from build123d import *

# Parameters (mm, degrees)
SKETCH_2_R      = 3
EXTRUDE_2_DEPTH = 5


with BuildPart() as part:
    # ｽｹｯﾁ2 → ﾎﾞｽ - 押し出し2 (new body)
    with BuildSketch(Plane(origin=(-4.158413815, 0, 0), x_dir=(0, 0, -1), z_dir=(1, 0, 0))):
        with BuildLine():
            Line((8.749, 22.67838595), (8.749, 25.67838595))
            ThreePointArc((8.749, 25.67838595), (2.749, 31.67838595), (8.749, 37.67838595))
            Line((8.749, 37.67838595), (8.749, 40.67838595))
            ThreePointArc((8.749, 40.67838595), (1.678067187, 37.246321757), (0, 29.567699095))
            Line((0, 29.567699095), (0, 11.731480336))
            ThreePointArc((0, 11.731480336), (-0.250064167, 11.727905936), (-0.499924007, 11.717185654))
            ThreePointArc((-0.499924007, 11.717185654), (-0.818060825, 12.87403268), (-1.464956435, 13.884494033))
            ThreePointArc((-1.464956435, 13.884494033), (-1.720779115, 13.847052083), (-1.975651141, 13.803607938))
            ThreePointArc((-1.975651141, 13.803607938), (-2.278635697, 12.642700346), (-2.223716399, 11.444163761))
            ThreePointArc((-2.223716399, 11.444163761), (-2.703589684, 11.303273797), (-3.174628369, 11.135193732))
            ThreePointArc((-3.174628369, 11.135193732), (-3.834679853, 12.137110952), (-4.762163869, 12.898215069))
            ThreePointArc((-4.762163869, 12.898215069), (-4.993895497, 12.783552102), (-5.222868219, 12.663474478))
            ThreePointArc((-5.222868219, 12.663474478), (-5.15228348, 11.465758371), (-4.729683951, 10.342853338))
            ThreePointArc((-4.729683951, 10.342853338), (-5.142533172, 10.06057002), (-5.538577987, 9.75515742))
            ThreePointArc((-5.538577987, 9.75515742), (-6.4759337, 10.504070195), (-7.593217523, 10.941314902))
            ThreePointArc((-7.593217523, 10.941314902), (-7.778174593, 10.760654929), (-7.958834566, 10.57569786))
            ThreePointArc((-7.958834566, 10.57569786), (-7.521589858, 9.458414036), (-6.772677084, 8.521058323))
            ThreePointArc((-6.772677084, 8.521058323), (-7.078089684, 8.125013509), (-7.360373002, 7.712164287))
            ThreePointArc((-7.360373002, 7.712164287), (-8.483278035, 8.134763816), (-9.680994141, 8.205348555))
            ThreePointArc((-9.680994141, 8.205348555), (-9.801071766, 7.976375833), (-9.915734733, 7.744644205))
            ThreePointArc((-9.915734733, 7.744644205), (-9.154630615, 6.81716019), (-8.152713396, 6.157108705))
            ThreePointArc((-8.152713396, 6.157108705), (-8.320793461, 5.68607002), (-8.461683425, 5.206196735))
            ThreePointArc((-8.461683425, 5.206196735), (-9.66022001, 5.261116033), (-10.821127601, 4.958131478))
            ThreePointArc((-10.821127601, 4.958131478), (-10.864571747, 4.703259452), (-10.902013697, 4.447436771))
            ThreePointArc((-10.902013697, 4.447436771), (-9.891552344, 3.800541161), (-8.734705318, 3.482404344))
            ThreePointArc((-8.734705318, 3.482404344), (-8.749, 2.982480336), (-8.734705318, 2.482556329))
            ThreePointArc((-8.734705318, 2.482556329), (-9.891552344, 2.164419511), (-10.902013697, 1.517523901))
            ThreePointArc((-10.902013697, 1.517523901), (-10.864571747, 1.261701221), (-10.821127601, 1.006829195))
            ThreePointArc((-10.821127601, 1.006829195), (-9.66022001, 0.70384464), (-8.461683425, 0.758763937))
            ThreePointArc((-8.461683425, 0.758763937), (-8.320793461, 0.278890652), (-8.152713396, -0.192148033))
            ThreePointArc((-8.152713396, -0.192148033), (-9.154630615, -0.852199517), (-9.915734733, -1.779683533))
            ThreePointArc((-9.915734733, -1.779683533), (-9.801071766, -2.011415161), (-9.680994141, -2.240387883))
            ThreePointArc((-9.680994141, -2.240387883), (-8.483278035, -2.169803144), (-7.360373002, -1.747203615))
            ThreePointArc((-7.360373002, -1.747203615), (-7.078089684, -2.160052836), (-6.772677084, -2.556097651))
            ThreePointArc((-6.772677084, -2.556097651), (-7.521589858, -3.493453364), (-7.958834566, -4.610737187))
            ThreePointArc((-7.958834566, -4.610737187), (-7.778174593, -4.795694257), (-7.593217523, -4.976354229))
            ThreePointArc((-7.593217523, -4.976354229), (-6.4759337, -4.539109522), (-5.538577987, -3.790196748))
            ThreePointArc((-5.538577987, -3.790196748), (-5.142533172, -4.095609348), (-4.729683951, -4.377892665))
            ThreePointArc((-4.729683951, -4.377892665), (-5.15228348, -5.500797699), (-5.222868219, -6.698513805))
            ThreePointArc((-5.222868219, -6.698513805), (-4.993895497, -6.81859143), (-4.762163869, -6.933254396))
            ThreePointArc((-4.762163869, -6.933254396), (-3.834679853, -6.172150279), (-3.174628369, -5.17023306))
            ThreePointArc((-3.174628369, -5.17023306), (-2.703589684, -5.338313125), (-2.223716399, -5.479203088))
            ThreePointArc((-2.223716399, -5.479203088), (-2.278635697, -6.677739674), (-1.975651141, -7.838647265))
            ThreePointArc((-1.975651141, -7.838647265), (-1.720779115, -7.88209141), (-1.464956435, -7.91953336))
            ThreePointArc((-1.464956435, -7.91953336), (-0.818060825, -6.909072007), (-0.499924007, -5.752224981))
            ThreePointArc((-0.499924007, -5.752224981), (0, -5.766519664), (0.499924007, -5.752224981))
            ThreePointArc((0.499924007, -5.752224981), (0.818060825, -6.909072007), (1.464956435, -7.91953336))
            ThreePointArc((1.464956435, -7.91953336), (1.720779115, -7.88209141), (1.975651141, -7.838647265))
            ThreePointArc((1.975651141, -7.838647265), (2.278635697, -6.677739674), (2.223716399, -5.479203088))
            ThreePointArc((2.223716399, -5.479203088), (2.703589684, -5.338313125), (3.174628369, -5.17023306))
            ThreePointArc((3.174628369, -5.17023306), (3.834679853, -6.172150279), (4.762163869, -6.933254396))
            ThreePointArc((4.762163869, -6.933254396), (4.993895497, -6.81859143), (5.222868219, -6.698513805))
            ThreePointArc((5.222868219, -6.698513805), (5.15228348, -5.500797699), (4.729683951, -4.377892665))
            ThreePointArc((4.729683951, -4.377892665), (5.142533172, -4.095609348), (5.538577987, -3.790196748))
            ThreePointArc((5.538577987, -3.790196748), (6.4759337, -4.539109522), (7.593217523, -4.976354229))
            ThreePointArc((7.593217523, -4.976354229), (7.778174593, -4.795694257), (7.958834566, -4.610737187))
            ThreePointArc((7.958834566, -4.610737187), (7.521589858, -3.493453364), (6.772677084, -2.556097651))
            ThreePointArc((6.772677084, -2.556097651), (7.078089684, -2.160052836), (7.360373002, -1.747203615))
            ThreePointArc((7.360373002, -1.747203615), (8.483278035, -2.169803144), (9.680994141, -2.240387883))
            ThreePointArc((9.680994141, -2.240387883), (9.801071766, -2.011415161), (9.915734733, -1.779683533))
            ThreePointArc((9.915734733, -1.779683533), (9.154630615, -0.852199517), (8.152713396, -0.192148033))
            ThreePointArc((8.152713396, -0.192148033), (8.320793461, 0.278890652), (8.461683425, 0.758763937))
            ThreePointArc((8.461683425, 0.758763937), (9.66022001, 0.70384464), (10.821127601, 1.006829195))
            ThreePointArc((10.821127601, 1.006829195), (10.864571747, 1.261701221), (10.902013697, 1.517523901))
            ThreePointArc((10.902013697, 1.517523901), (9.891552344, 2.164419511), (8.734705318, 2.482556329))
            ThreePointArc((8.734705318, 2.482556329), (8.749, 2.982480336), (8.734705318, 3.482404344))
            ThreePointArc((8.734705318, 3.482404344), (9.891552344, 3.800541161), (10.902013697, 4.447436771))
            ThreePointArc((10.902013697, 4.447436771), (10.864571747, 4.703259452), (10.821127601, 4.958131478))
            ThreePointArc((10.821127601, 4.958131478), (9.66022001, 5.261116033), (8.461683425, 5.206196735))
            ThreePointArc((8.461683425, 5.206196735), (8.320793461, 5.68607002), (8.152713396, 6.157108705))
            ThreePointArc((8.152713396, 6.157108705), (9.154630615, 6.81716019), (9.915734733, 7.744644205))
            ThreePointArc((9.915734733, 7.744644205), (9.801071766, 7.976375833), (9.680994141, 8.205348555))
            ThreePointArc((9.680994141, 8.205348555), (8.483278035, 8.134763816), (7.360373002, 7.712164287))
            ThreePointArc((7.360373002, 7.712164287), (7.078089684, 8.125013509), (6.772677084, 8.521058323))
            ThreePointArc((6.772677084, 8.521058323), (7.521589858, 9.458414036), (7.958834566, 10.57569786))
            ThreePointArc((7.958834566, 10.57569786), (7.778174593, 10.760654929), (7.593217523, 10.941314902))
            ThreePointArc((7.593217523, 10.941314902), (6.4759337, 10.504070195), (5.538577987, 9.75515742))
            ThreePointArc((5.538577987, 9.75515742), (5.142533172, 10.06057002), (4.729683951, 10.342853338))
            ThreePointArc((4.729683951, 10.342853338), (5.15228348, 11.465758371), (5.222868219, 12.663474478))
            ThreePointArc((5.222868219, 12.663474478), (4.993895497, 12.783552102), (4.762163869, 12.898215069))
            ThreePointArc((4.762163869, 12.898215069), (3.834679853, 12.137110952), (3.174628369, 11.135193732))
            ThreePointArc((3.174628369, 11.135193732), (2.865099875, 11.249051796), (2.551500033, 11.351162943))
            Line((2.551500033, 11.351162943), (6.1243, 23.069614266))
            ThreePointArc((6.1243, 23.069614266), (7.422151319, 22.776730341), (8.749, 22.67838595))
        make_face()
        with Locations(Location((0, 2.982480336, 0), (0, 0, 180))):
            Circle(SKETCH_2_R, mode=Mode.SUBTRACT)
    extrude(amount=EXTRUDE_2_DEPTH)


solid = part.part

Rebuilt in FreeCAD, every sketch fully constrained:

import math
import FreeCAD as App
import Part
import Sketcher
Q = App.Units.Quantity

doc = App.newDocument("Part")
params = doc.addObject("Spreadsheet::Sheet", "Params")
for row, (alias, value) in enumerate([
    ("sketch1_diameter", "6 mm"),
    ("sketch1_radius", "6 mm"),
    ("sketch1_radius2", "9 mm"),
    ("sketch1_radius3", "4 mm"),
    ("sketch1_radius4", "11 mm"),
    ("pad1_length", "5 mm"),
], start=1):
    params.set(f"A{row}", alias)
    params.set(f"B{row}", "=" + value)
    params.setAlias(f"B{row}", alias)

body = doc.addObject("PartDesign::Body", "Body")

sketch1 = doc.addObject("Sketcher::SketchObject", "Sketch")
body.addObject(sketch1)
sketch1.AttachmentSupport = (doc.YZ_Plane, [""])
sketch1.MapMode = "FlatFace"
sketch1.AttachmentOffset = App.Placement(App.Vector(0, 0, -4.158414), App.Rotation())
sketch1.addGeometry([
    Part.LineSegment(App.Vector(22.678386, -8.749, 0), App.Vector(25.678386, -8.749, 0)),
    Part.ArcOfCircle(Part.Circle(App.Vector(31.678386, -8.749, 0), App.Vector(0, 0, 1), 6), math.radians(0), math.radians(180)),
    Part.LineSegment(App.Vector(37.678386, -8.749, 0), App.Vector(40.678386, -8.749, 0)),
    Part.ArcOfCircle(Part.Circle(App.Vector(31.678386, -8.749, 0), App.Vector(0, 0, 1), 9), math.radians(0), math.radians(103.563375)),
    Part.LineSegment(App.Vector(29.567699, 0, 0), App.Vector(11.73148, 0, 0)),
    Part.ArcOfCircle(Part.Circle(App.Vector(2.982482, 0, 0), App.Vector(0, 0, 1), 8.748999), math.radians(0), math.radians(3.275706)),
    Part.ArcOfCircle(Part.Circle(App.Vector(11.246967, 4.47219, 0), App.Vector(0, 0, 1), 4), math.radians(-83.249005), math.radians(-48.747263)),
    Part.ArcOfCircle(Part.Circle(App.Vector(2.98248, 0, 0), App.Vector(0, 0, 1), 11), math.radians(7.653267), math.radians(10.346733)),
    Part.ArcOfCircle(Part.Circle(App.Vector(12.224457, -1.699438, 0), App.Vector(0, 0, 1), 4), math.radians(66.747263), math.radians(101.249006)),
    Part.ArcOfCircle(Part.Circle(App.Vector(2.98248, 0, 0), App.Vector(0, 0, 1), 8.749), math.radians(14.724295), math.radians(21.275705)),
    Part.ArcOfCircle(Part.Circle(App.Vector(9.460492, 6.807172, 0), App.Vector(0, 0, 1), 4), math.radians(-65.249006), math.radians(-30.747263)),
    Part.ArcOfCircle(Part.Circle(App.Vector(2.982478, -0.000001, 0), App.Vector(0, 0, 1), 11.000002), math.radians(25.653268), math.radians(28.346732)),
    Part.ArcOfCircle(Part.Circle(App.Vector(12.297278, 1.239666, 0), App.Vector(0, 0, 1), 4), math.radians(84.747263), math.radians(119.249005)),
    Part.ArcOfCircle(Part.Circle(App.Vector(2.98248, 0, 0), App.Vector(0, 0, 1), 8.749), math.radians(32.724295), math.radians(39.275705)),
    Part.ArcOfCircle(Part.Circle(App.Vector(7.039903, 8.475821, 0), App.Vector(0, 0, 1), 4), math.radians(-47.249006), math.radians(-12.747263)),
    Part.ArcOfCircle(Part.Circle(App.Vector(2.982479, -0.000001, 0), App.Vector(0, 0, 1), 11.000002), math.radians(43.653268), math.radians(46.346732)),
    Part.ArcOfCircle(Part.Circle(App.Vector(11.458301, 4.057423, 0), App.Vector(0, 0, 1), 4), math.radians(102.747263), math.radians(137.249005)),
    Part.ArcOfCircle(Part.Circle(App.Vector(2.98248, 0, 0), App.Vector(0, 0, 1), 8.749), math.radians(50.724295), math.radians(57.275705)),
    Part.ArcOfCircle(Part.Circle(App.Vector(4.222146, 9.314797, 0), App.Vector(0, 0, 1), 4), math.radians(-29.249005), math.radians(5.252737)),
    Part.ArcOfCircle(Part.Circle(App.Vector(2.98248, -0.000001, 0), App.Vector(0, 0, 1), 11.000001), math.radians(61.653267), math.radians(64.346732)),
    Part.ArcOfCircle(Part.Circle(App.Vector(9.789652, 6.478011, 0), App.Vector(0, 0, 1), 4), math.radians(120.747263), math.radians(155.249005)),
    Part.ArcOfCircle(Part.Circle(App.Vector(2.98248, 0, 0), App.Vector(0, 0, 1), 8.749), math.radians(68.724295), math.radians(75.275705)),
    Part.ArcOfCircle(Part.Circle(App.Vector(1.283042, 9.241977, 0), App.Vector(0, 0, 1), 4), math.radians(-11.249006), math.radians(23.252737)),
    Part.ArcOfCircle(Part.Circle(App.Vector(2.982481, 0.000002, 0), App.Vector(0, 0, 1), 10.999998), math.radians(79.653267), math.radians(82.346733)),
    Part.ArcOfCircle(Part.Circle(App.Vector(7.45467, 8.264487, 0), App.Vector(0, 0, 1), 4), math.radians(138.747263), math.radians(173.249006)),
    Part.ArcOfCircle(Part.Circle(App.Vector(2.98248, 0, 0), App.Vector(0, 0, 1), 8.749), math.radians(86.724295), math.radians(93.275705)),
    Part.ArcOfCircle(Part.Circle(App.Vector(-1.489709, 8.264487, 0), App.Vector(0, 0, 1), 4), math.radians(6.750995), math.radians(41.252737)),
    Part.ArcOfCircle(Part.Circle(App.Vector(2.98248, 0.000002, 0), App.Vector(0, 0, 1), 10.999998), math.radians(97.653267), math.radians(100.346733)),
    Part.ArcOfCircle(Part.Circle(App.Vector(4.681919, 9.241977, 0), App.Vector(0, 0, 1), 4), math.radians(156.747263), math.radians(191.249005)),
    Part.ArcOfCircle(Part.Circle(App.Vector(2.98248, 0, 0), App.Vector(0, 0, 1), 8.749), math.radians(104.724295), math.radians(111.275705)),
    Part.ArcOfCircle(Part.Circle(App.Vector(-3.824692, 6.478011, 0), App.Vector(0, 0, 1), 4), math.radians(24.750995), math.radians(59.252737)),
    Part.ArcOfCircle(Part.Circle(App.Vector(2.982481, -0.000001, 0), App.Vector(0, 0, 1), 11.000001), math.radians(115.653268), math.radians(118.346733)),
    Part.ArcOfCircle(Part.Circle(App.Vector(1.742814, 9.314797, 0), App.Vector(0, 0, 1), 4), math.radians(174.747263), math.radians(209.249005)),
    Part.ArcOfCircle(Part.Circle(App.Vector(2.98248, 0, 0), App.Vector(0, 0, 1), 8.749), math.radians(122.724295), math.radians(129.275705)),
    Part.ArcOfCircle(Part.Circle(App.Vector(-5.493341, 4.057423, 0), App.Vector(0, 0, 1), 4), math.radians(42.750995), math.radians(77.252737)),
    Part.ArcOfCircle(Part.Circle(App.Vector(2.98248, 0.000001, 0), App.Vector(0, 0, 1), 10.999999), math.radians(133.653267), math.radians(136.346733)),
    Part.ArcOfCircle(Part.Circle(App.Vector(-1.074943, 8.475821, 0), App.Vector(0, 0, 1), 4), math.radians(-167.252737), math.radians(-132.750995)),
    Part.ArcOfCircle(Part.Circle(App.Vector(2.98248, 0, 0), App.Vector(0, 0, 1), 8.749), math.radians(140.724295), math.radians(147.275705)),
    Part.ArcOfCircle(Part.Circle(App.Vector(-6.332317, 1.239666, 0), App.Vector(0, 0, 1), 4), math.radians(60.750995), math.radians(95.252737)),
    Part.ArcOfCircle(Part.Circle(App.Vector(2.982479, 0, 0), App.Vector(0, 0, 1), 10.999999), math.radians(151.653267), math.radians(154.346733)),
    Part.ArcOfCircle(Part.Circle(App.Vector(-3.495531, 6.807172, 0), App.Vector(0, 0, 1), 4), math.radians(-149.252737), math.radians(-114.750995)),
    Part.ArcOfCircle(Part.Circle(App.Vector(2.98248, 0, 0), App.Vector(0, 0, 1), 8.749), math.radians(158.724295), math.radians(165.275705)),
    Part.ArcOfCircle(Part.Circle(App.Vector(-6.259496, -1.699438, 0), App.Vector(0, 0, 1), 4), math.radians(78.750994), math.radians(113.252737)),
    Part.ArcOfCircle(Part.Circle(App.Vector(2.98248, 0, 0), App.Vector(0, 0, 1), 11), math.radians(169.653267), math.radians(172.346733)),
    Part.ArcOfCircle(Part.Circle(App.Vector(-5.282006, 4.47219, 0), App.Vector(0, 0, 1), 4), math.radians(-131.252737), math.radians(-96.750995)),
    Part.ArcOfCircle(Part.Circle(App.Vector(2.98248, 0, 0), App.Vector(0, 0, 1), 8.749), math.radians(176.724295), math.radians(183.275705)),
    Part.ArcOfCircle(Part.Circle(App.Vector(-5.282006, -4.47219, 0), App.Vector(0, 0, 1), 4), math.radians(96.750995), math.radians(131.252737)),
    Part.ArcOfCircle(Part.Circle(App.Vector(2.98248, 0, 0), App.Vector(0, 0, 1), 11), math.radians(-172.346733), math.radians(-169.653267)),
    Part.ArcOfCircle(Part.Circle(App.Vector(-6.259496, 1.699438, 0), App.Vector(0, 0, 1), 4), math.radians(-113.252737), math.radians(-78.750994)),
    Part.ArcOfCircle(Part.Circle(App.Vector(2.98248, 0, 0), App.Vector(0, 0, 1), 8.749), math.radians(-165.275705), math.radians(-158.724295)),
    Part.ArcOfCircle(Part.Circle(App.Vector(-3.495531, -6.807172, 0), App.Vector(0, 0, 1), 4), math.radians(114.750995), math.radians(149.252737)),
    Part.ArcOfCircle(Part.Circle(App.Vector(2.982479, 0, 0), App.Vector(0, 0, 1), 10.999999), math.radians(-154.346733), math.radians(-151.653267)),
    Part.ArcOfCircle(Part.Circle(App.Vector(-6.332317, -1.239666, 0), App.Vector(0, 0, 1), 4), math.radians(-95.252737), math.radians(-60.750995)),
    Part.ArcOfCircle(Part.Circle(App.Vector(2.98248, 0, 0), App.Vector(0, 0, 1), 8.749), math.radians(-147.275705), math.radians(-140.724295)),
    Part.ArcOfCircle(Part.Circle(App.Vector(-1.074943, -8.475821, 0), App.Vector(0, 0, 1), 4), math.radians(132.750995), math.radians(167.252737)),
    Part.ArcOfCircle(Part.Circle(App.Vector(2.98248, -0.000001, 0), App.Vector(0, 0, 1), 10.999999), math.radians(-136.346733), math.radians(-133.653267)),
    Part.ArcOfCircle(Part.Circle(App.Vector(-5.493341, -4.057423, 0), App.Vector(0, 0, 1), 4), math.radians(-77.252737), math.radians(-42.750995)),
    Part.ArcOfCircle(Part.Circle(App.Vector(2.98248, 0, 0), App.Vector(0, 0, 1), 8.749), math.radians(-129.275705), math.radians(-122.724295)),
    Part.ArcOfCircle(Part.Circle(App.Vector(1.742814, -9.314797, 0), App.Vector(0, 0, 1), 4), math.radians(150.750995), math.radians(185.252737)),
    Part.ArcOfCircle(Part.Circle(App.Vector(2.982481, 0.000001, 0), App.Vector(0, 0, 1), 11.000001), math.radians(-118.346733), math.radians(-115.653268)),
    Part.ArcOfCircle(Part.Circle(App.Vector(-3.824692, -6.478011, 0), App.Vector(0, 0, 1), 4), math.radians(-59.252737), math.radians(-24.750995)),
    Part.ArcOfCircle(Part.Circle(App.Vector(2.98248, 0, 0), App.Vector(0, 0, 1), 8.749), math.radians(-111.275705), math.radians(-104.724295)),
    Part.ArcOfCircle(Part.Circle(App.Vector(4.681919, -9.241977, 0), App.Vector(0, 0, 1), 4), math.radians(168.750995), math.radians(203.252737)),
    Part.ArcOfCircle(Part.Circle(App.Vector(2.98248, -0.000002, 0), App.Vector(0, 0, 1), 10.999998), math.radians(-100.346733), math.radians(-97.653267)),
    Part.ArcOfCircle(Part.Circle(App.Vector(-1.489709, -8.264487, 0), App.Vector(0, 0, 1), 4), math.radians(-41.252737), math.radians(-6.750995)),
    Part.ArcOfCircle(Part.Circle(App.Vector(2.98248, 0, 0), App.Vector(0, 0, 1), 8.749), math.radians(-93.275705), math.radians(-86.724295)),
    Part.ArcOfCircle(Part.Circle(App.Vector(7.45467, -8.264487, 0), App.Vector(0, 0, 1), 4), math.radians(-173.249006), math.radians(-138.747263)),
    Part.ArcOfCircle(Part.Circle(App.Vector(2.982481, -0.000002, 0), App.Vector(0, 0, 1), 10.999998), math.radians(-82.346733), math.radians(-79.653267)),
    Part.ArcOfCircle(Part.Circle(App.Vector(1.283042, -9.241977, 0), App.Vector(0, 0, 1), 4), math.radians(-23.252737), math.radians(11.249006)),
    Part.ArcOfCircle(Part.Circle(App.Vector(2.98248, 0, 0), App.Vector(0, 0, 1), 8.749), math.radians(-75.275705), math.radians(-68.724295)),
    Part.ArcOfCircle(Part.Circle(App.Vector(9.789652, -6.478011, 0), App.Vector(0, 0, 1), 4), math.radians(-155.249005), math.radians(-120.747263)),
    Part.ArcOfCircle(Part.Circle(App.Vector(2.98248, 0.000001, 0), App.Vector(0, 0, 1), 11.000001), math.radians(-64.346732), math.radians(-61.653267)),
    Part.ArcOfCircle(Part.Circle(App.Vector(4.222146, -9.314797, 0), App.Vector(0, 0, 1), 4), math.radians(-5.252737), math.radians(29.249005)),
    Part.ArcOfCircle(Part.Circle(App.Vector(2.98248, 0, 0), App.Vector(0, 0, 1), 8.749), math.radians(-57.275705), math.radians(-50.724295)),
    Part.ArcOfCircle(Part.Circle(App.Vector(11.458301, -4.057423, 0), App.Vector(0, 0, 1), 4), math.radians(-137.249005), math.radians(-102.747263)),
    Part.ArcOfCircle(Part.Circle(App.Vector(2.982479, 0.000001, 0), App.Vector(0, 0, 1), 11.000002), math.radians(-46.346732), math.radians(-43.653268)),
    Part.ArcOfCircle(Part.Circle(App.Vector(7.039903, -8.475821, 0), App.Vector(0, 0, 1), 4), math.radians(12.747263), math.radians(47.249006)),
    Part.ArcOfCircle(Part.Circle(App.Vector(2.98248, 0, 0), App.Vector(0, 0, 1), 8.749), math.radians(-39.275705), math.radians(-32.724295)),
    Part.ArcOfCircle(Part.Circle(App.Vector(12.297278, -1.239666, 0), App.Vector(0, 0, 1), 4), math.radians(-119.249005), math.radians(-84.747263)),
    Part.ArcOfCircle(Part.Circle(App.Vector(2.982478, 0.000001, 0), App.Vector(0, 0, 1), 11.000002), math.radians(-28.346732), math.radians(-25.653268)),
    Part.ArcOfCircle(Part.Circle(App.Vector(9.460492, -6.807172, 0), App.Vector(0, 0, 1), 4), math.radians(30.747263), math.radians(65.249006)),
    Part.ArcOfCircle(Part.Circle(App.Vector(2.98248, 0, 0), App.Vector(0, 0, 1), 8.749), math.radians(-21.275705), math.radians(-16.955767)),
    Part.LineSegment(App.Vector(11.351163, -2.5515, 0), App.Vector(23.069614, -6.1243, 0)),
    Part.ArcOfCircle(Part.Circle(App.Vector(31.678386, -8.749, 0), App.Vector(0, 0, 1), 9), math.radians(163.044233), math.radians(180)),
    Part.Circle(App.Vector(2.98248, 0, 0), App.Vector(0, 0, 1), 3),
], False)
sketch1.addConstraint([
    Sketcher.Constraint("Coincident", 0, 2, 1, 2),
    Sketcher.Constraint("Coincident", 1, 1, 2, 1),
    Sketcher.Constraint("Coincident", 2, 2, 3, 1),
    Sketcher.Constraint("Coincident", 3, 2, 4, 1),
    Sketcher.Constraint("Coincident", 4, 2, 5, 1),
    Sketcher.Constraint("Coincident", 5, 2, 6, 1),
    Sketcher.Constraint("Coincident", 6, 2, 7, 1),
    Sketcher.Constraint("Coincident", 7, 2, 8, 1),
    Sketcher.Constraint("Coincident", 8, 2, 9, 1),
    Sketcher.Constraint("Coincident", 9, 2, 10, 1),
    Sketcher.Constraint("Coincident", 10, 2, 11, 1),
    Sketcher.Constraint("Coincident", 11, 2, 12, 1),
    Sketcher.Constraint("Coincident", 12, 2, 13, 1),
    Sketcher.Constraint("Coincident", 13, 2, 14, 1),
    Sketcher.Constraint("Coincident", 14, 2, 15, 1),
    Sketcher.Constraint("Coincident", 15, 2, 16, 1),
    Sketcher.Constraint("Coincident", 16, 2, 17, 1),
    Sketcher.Constraint("Coincident", 17, 2, 18, 1),
    Sketcher.Constraint("Coincident", 18, 2, 19, 1),
    Sketcher.Constraint("Coincident", 19, 2, 20, 1),
    Sketcher.Constraint("Coincident", 20, 2, 21, 1),
    Sketcher.Constraint("Coincident", 21, 2, 22, 1),
    Sketcher.Constraint("Coincident", 22, 2, 23, 1),
    Sketcher.Constraint("Coincident", 23, 2, 24, 1),
    Sketcher.Constraint("Coincident", 24, 2, 25, 1),
    Sketcher.Constraint("Coincident", 25, 2, 26, 1),
    Sketcher.Constraint("Coincident", 26, 2, 27, 1),
    Sketcher.Constraint("Coincident", 27, 2, 28, 1),
    Sketcher.Constraint("Coincident", 28, 2, 29, 1),
    Sketcher.Constraint("Coincident", 29, 2, 30, 1),
    Sketcher.Constraint("Coincident", 30, 2, 31, 1),
    Sketcher.Constraint("Coincident", 31, 2, 32, 1),
    Sketcher.Constraint("Coincident", 32, 2, 33, 1),
    Sketcher.Constraint("Coincident", 33, 2, 34, 1),
    Sketcher.Constraint("Coincident", 34, 2, 35, 1),
    Sketcher.Constraint("Coincident", 35, 2, 36, 1),
    Sketcher.Constraint("Coincident", 36, 2, 37, 1),
    Sketcher.Constraint("Coincident", 37, 2, 38, 1),
    Sketcher.Constraint("Coincident", 38, 2, 39, 1),
    Sketcher.Constraint("Coincident", 39, 2, 40, 1),
    Sketcher.Constraint("Coincident", 40, 2, 41, 1),
    Sketcher.Constraint("Coincident", 41, 2, 42, 1),
    Sketcher.Constraint("Coincident", 42, 2, 43, 1),
    Sketcher.Constraint("Coincident", 43, 2, 44, 1),
    Sketcher.Constraint("Coincident", 44, 2, 45, 1),
    Sketcher.Constraint("Coincident", 45, 2, 46, 1),
    Sketcher.Constraint("Coincident", 46, 2, 47, 1),
    Sketcher.Constraint("Coincident", 47, 2, 48, 1),
    Sketcher.Constraint("Coincident", 48, 2, 49, 1),
    Sketcher.Constraint("Coincident", 49, 2, 50, 1),
    Sketcher.Constraint("Coincident", 50, 2, 51, 1),
    Sketcher.Constraint("Coincident", 51, 2, 52, 1),
    Sketcher.Constraint("Coincident", 52, 2, 53, 1),
    Sketcher.Constraint("Coincident", 53, 2, 54, 1),
    Sketcher.Constraint("Coincident", 54, 2, 55, 1),
    Sketcher.Constraint("Coincident", 55, 2, 56, 1),
    Sketcher.Constraint("Coincident", 56, 2, 57, 1),
    Sketcher.Constraint("Coincident", 57, 2, 58, 1),
    Sketcher.Constraint("Coincident", 58, 2, 59, 1),
    Sketcher.Constraint("Coincident", 59, 2, 60, 1),
    Sketcher.Constraint("Coincident", 60, 2, 61, 1),
    Sketcher.Constraint("Coincident", 61, 2, 62, 1),
    Sketcher.Constraint("Coincident", 62, 2, 63, 1),
    Sketcher.Constraint("Coincident", 63, 2, 64, 1),
    Sketcher.Constraint("Coincident", 64, 2, 65, 1),
    Sketcher.Constraint("Coincident", 65, 2, 66, 1),
    Sketcher.Constraint("Coincident", 66, 2, 67, 1),
    Sketcher.Constraint("Coincident", 67, 2, 68, 1),
    Sketcher.Constraint("Coincident", 68, 2, 69, 1),
    Sketcher.Constraint("Coincident", 69, 2, 70, 1),
    Sketcher.Constraint("Coincident", 70, 2, 71, 1),
    Sketcher.Constraint("Coincident", 71, 2, 72, 1),
    Sketcher.Constraint("Coincident", 72, 2, 73, 1),
    Sketcher.Constraint("Coincident", 73, 2, 74, 1),
    Sketcher.Constraint("Coincident", 74, 2, 75, 1),
    Sketcher.Constraint("Coincident", 75, 2, 76, 1),
    Sketcher.Constraint("Coincident", 76, 2, 77, 1),
    Sketcher.Constraint("Coincident", 77, 2, 78, 1),
    Sketcher.Constraint("Coincident", 78, 2, 79, 1),
    Sketcher.Constraint("Coincident", 79, 2, 80, 1),
    Sketcher.Constraint("Coincident", 80, 2, 81, 1),
    Sketcher.Constraint("Coincident", 81, 2, 82, 1),
    Sketcher.Constraint("Coincident", 82, 2, 83, 1),
    Sketcher.Constraint("Coincident", 83, 2, 0, 1),
    Sketcher.Constraint("Horizontal", 0),
    Sketcher.Constraint("Horizontal", 2),
    Sketcher.Constraint("Horizontal", 4),
    Sketcher.Constraint("Coincident", 3, 3, 1, 3),
    Sketcher.Constraint("Coincident", 7, 3, 5, 3),
    Sketcher.Constraint("Coincident", 9, 3, 5, 3),
    Sketcher.Constraint("Coincident", 11, 3, 5, 3),
    Sketcher.Constraint("Coincident", 13, 3, 5, 3),
    Sketcher.Constraint("Coincident", 15, 3, 5, 3),
    Sketcher.Constraint("Coincident", 17, 3, 5, 3),
    Sketcher.Constraint("Coincident", 19, 3, 5, 3),
    Sketcher.Constraint("Coincident", 21, 3, 5, 3),
    Sketcher.Constraint("Coincident", 23, 3, 5, 3),
    Sketcher.Constraint("Coincident", 25, 3, 5, 3),
    Sketcher.Constraint("Coincident", 27, 3, 5, 3),
    Sketcher.Constraint("Coincident", 29, 3, 5, 3),
    Sketcher.Constraint("Coincident", 31, 3, 5, 3),
    Sketcher.Constraint("Coincident", 33, 3, 5, 3),
    Sketcher.Constraint("Coincident", 35, 3, 5, 3),
    Sketcher.Constraint("Coincident", 37, 3, 5, 3),
    Sketcher.Constraint("Coincident", 39, 3, 5, 3),
    Sketcher.Constraint("Coincident", 41, 3, 5, 3),
    Sketcher.Constraint("Coincident", 43, 3, 5, 3),
    Sketcher.Constraint("Coincident", 45, 3, 5, 3),
    Sketcher.Constraint("Coincident", 47, 3, 5, 3),
    Sketcher.Constraint("Coincident", 49, 3, 5, 3),
    Sketcher.Constraint("Coincident", 51, 3, 5, 3),
    Sketcher.Constraint("Coincident", 53, 3, 5, 3),
    Sketcher.Constraint("Coincident", 55, 3, 5, 3),
    Sketcher.Constraint("Coincident", 57, 3, 5, 3),
    Sketcher.Constraint("Coincident", 59, 3, 5, 3),
    Sketcher.Constraint("Coincident", 61, 3, 5, 3),
    Sketcher.Constraint("Coincident", 63, 3, 5, 3),
    Sketcher.Constraint("Coincident", 65, 3, 5, 3),
    Sketcher.Constraint("Coincident", 67, 3, 5, 3),
    Sketcher.Constraint("Coincident", 69, 3, 5, 3),
    Sketcher.Constraint("Coincident", 71, 3, 5, 3),
    Sketcher.Constraint("Coincident", 73, 3, 5, 3),
    Sketcher.Constraint("Coincident", 75, 3, 5, 3),
    Sketcher.Constraint("Coincident", 77, 3, 5, 3),
    Sketcher.Constraint("Coincident", 79, 3, 5, 3),
    Sketcher.Constraint("Coincident", 81, 3, 5, 3),
    Sketcher.Constraint("Coincident", 83, 3, 1, 3),
    Sketcher.Constraint("Coincident", 84, 3, 5, 3),
    Sketcher.Constraint("Equal", 6, 8),
    Sketcher.Constraint("Equal", 5, 9),
    Sketcher.Constraint("Equal", 8, 10),
    Sketcher.Constraint("Equal", 10, 12),
    Sketcher.Constraint("Equal", 9, 13),
    Sketcher.Constraint("Equal", 12, 14),
    Sketcher.Constraint("Equal", 11, 15),
    Sketcher.Constraint("Equal", 14, 16),
    Sketcher.Constraint("Equal", 13, 17),
    Sketcher.Constraint("Equal", 16, 18),
    Sketcher.Constraint("Equal", 15, 19),
    Sketcher.Constraint("Equal", 18, 20),
    Sketcher.Constraint("Equal", 17, 21),
    Sketcher.Constraint("Equal", 20, 22),
    Sketcher.Constraint("Equal", 22, 24),
    Sketcher.Constraint("Equal", 21, 25),
    Sketcher.Constraint("Equal", 24, 26),
    Sketcher.Constraint("Equal", 23, 27),
    Sketcher.Constraint("Equal", 26, 28),
    Sketcher.Constraint("Equal", 25, 29),
    Sketcher.Constraint("Equal", 28, 30),
    Sketcher.Constraint("Equal", 19, 31),
    Sketcher.Constraint("Equal", 30, 32),
    Sketcher.Constraint("Equal", 29, 33),
    Sketcher.Constraint("Equal", 32, 34),
    Sketcher.Constraint("Equal", 31, 35),
    Sketcher.Constraint("Equal", 34, 36),
    Sketcher.Constraint("Equal", 33, 37),
    Sketcher.Constraint("Equal", 36, 38),
    Sketcher.Constraint("Equal", 35, 39),
    Sketcher.Constraint("Equal", 38, 40),
    Sketcher.Constraint("Equal", 37, 41),
    Sketcher.Constraint("Equal", 40, 42),
    Sketcher.Constraint("Equal", 39, 43),
    Sketcher.Constraint("Equal", 42, 44),
    Sketcher.Constraint("Equal", 41, 45),
    Sketcher.Constraint("Equal", 44, 46),
    Sketcher.Constraint("Equal", 43, 47),
    Sketcher.Constraint("Equal", 46, 48),
    Sketcher.Constraint("Equal", 45, 49),
    Sketcher.Constraint("Equal", 48, 50),
    Sketcher.Constraint("Equal", 47, 51),
    Sketcher.Constraint("Equal", 50, 52),
    Sketcher.Constraint("Equal", 49, 53),
    Sketcher.Constraint("Equal", 52, 54),
    Sketcher.Constraint("Equal", 51, 55),
    Sketcher.Constraint("Equal", 54, 56),
    Sketcher.Constraint("Equal", 53, 57),
    Sketcher.Constraint("Equal", 56, 58),
    Sketcher.Constraint("Equal", 55, 59),
    Sketcher.Constraint("Equal", 58, 60),
    Sketcher.Constraint("Equal", 57, 61),
    Sketcher.Constraint("Equal", 60, 62),
    Sketcher.Constraint("Equal", 55, 63),
    Sketcher.Constraint("Equal", 62, 64),
    Sketcher.Constraint("Equal", 61, 65),
    Sketcher.Constraint("Equal", 64, 66),
    Sketcher.Constraint("Equal", 63, 67),
    Sketcher.Constraint("Equal", 66, 68),
    Sketcher.Constraint("Equal", 65, 69),
    Sketcher.Constraint("Equal", 68, 70),
    Sketcher.Constraint("Equal", 59, 71),
    Sketcher.Constraint("Equal", 70, 72),
    Sketcher.Constraint("Equal", 69, 73),
    Sketcher.Constraint("Equal", 72, 74),
    Sketcher.Constraint("Equal", 71, 75),
    Sketcher.Constraint("Equal", 74, 76),
    Sketcher.Constraint("Equal", 73, 77),
    Sketcher.Constraint("Equal", 76, 78),
    Sketcher.Constraint("Equal", 75, 79),
    Sketcher.Constraint("Equal", 78, 80),
    Sketcher.Constraint("Equal", 77, 81),
    Sketcher.Constraint("Equal", 3, 83),
    Sketcher.Constraint("Symmetric", 44, 3, 46, 3, -1),
    Sketcher.Constraint("Symmetric", 42, 3, 48, 3, -1),
    Sketcher.Constraint("Symmetric", 40, 3, 50, 3, -1),
    Sketcher.Constraint("Symmetric", 38, 3, 52, 3, -1),
    Sketcher.Constraint("Symmetric", 36, 3, 54, 3, -1),
    Sketcher.Constraint("Symmetric", 34, 3, 56, 3, -1),
    Sketcher.Constraint("Symmetric", 32, 3, 58, 3, -1),
    Sketcher.Constraint("Symmetric", 30, 3, 60, 3, -1),
    Sketcher.Constraint("Symmetric", 28, 3, 62, 3, -1),
    Sketcher.Constraint("Symmetric", 26, 3, 64, 3, -1),
    Sketcher.Constraint("Symmetric", 24, 3, 66, 3, -1),
    Sketcher.Constraint("Symmetric", 22, 3, 68, 3, -1),
    Sketcher.Constraint("Symmetric", 20, 3, 70, 3, -1),
    Sketcher.Constraint("Symmetric", 18, 3, 72, 3, -1),
    Sketcher.Constraint("Symmetric", 16, 3, 74, 3, -1),
    Sketcher.Constraint("Symmetric", 14, 3, 76, 3, -1),
    Sketcher.Constraint("Symmetric", 12, 3, 78, 3, -1),
    Sketcher.Constraint("Symmetric", 10, 3, 80, 3, -1),
    Sketcher.Constraint("PointOnObject", 5, 3, -1),
    Sketcher.Constraint("PointOnObject", 3, 2, -1),
    Sketcher.Constraint("Horizontal", 24, 3, 26, 3),
    Sketcher.Constraint("Horizontal", 22, 3, 28, 3),
    Sketcher.Constraint("Horizontal", 20, 3, 30, 3),
    Sketcher.Constraint("Horizontal", 18, 3, 32, 3),
    Sketcher.Constraint("Horizontal", 16, 3, 34, 3),
    Sketcher.Constraint("Horizontal", 14, 3, 36, 3),
    Sketcher.Constraint("Horizontal", 12, 3, 38, 3),
    Sketcher.Constraint("Horizontal", 10, 3, 40, 3),
    Sketcher.Constraint("Horizontal", 8, 3, 42, 3),
    Sketcher.Constraint("Horizontal", 6, 3, 44, 3),
    Sketcher.Constraint("Horizontal", 83, 3, 0, 2),
    Sketcher.Constraint("Horizontal", 0, 2, 1, 1),
    Sketcher.Constraint("Horizontal", 24, 2, 25, 2),
    Sketcher.Constraint("Horizontal", 22, 2, 27, 2),
    Sketcher.Constraint("Horizontal", 20, 2, 29, 2),
    Sketcher.Constraint("Horizontal", 18, 2, 31, 2),
    Sketcher.Constraint("Horizontal", 16, 2, 33, 2),
    Sketcher.Constraint("Horizontal", 14, 2, 35, 2),
    Sketcher.Constraint("Horizontal", 12, 2, 37, 2),
    Sketcher.Constraint("Horizontal", 10, 2, 39, 2),
    Sketcher.Constraint("Horizontal", 8, 2, 41, 2),
    Sketcher.Constraint("Horizontal", 7, 2, 42, 2),
    Sketcher.Constraint("Horizontal", 6, 2, 43, 2),
    Sketcher.Constraint("Vertical", 27, 2, 62, 2),
    Sketcher.Constraint("Diameter", 84, Q("6 mm")),
    Sketcher.Constraint("Radius", 1, Q("6 mm")),
    Sketcher.Constraint("Radius", 3, Q("9 mm")),
    Sketcher.Constraint("Radius", 6, Q("4 mm")),
    Sketcher.Constraint("Radius", 7, Q("11 mm")),
    Sketcher.Constraint("Radius", 5, Q("8.748999 mm")),
    Sketcher.Constraint("Distance", 82, Q("12.251 mm")),
    Sketcher.Constraint("DistanceY", 1, 3, -1, 1, Q("8.749 mm")),
    Sketcher.Constraint("DistanceX", -1, 1, 16, 3, Q("11.458301 mm")),
    Sketcher.Constraint("DistanceX", -1, 1, 3, 2, Q("29.567699 mm")),
    Sketcher.Constraint("DistanceY", 81, 2, -1, 1, Q("2.5515 mm")),
    Sketcher.Constraint("DistanceY", 82, 2, -1, 1, Q("6.1243 mm")),
    Sketcher.Constraint("DistanceY", -1, 1, 6, 3, Q("4.47219 mm")),
    Sketcher.Constraint("DistanceY", 8, 3, -1, 1, Q("1.699438 mm")),
    Sketcher.Constraint("DistanceX", -1, 1, 10, 3, Q("9.460492 mm")),
    Sketcher.Constraint("DistanceY", -1, 1, 10, 3, Q("6.807172 mm")),
    Sketcher.Constraint("DistanceY", -1, 1, 14, 3, Q("8.475821 mm")),
    Sketcher.Constraint("DistanceY", -1, 1, 20, 3, Q("6.478011 mm")),
    Sketcher.Constraint("DistanceX", -1, 1, 24, 3, Q("7.45467 mm")),
    Sketcher.Constraint("DistanceX", -1, 1, 28, 3, Q("4.681919 mm")),
    Sketcher.Constraint("DistanceX", 30, 3, -1, 1, Q("3.824692 mm")),
    Sketcher.Constraint("DistanceY", -1, 1, 7, 2, Q("1.975651 mm")),
    Sketcher.Constraint("DistanceY", -1, 1, 11, 2, Q("5.222868 mm")),
    Sketcher.Constraint("DistanceX", -1, 1, 16, 2, Q("8.521058 mm")),
    Sketcher.Constraint("DistanceX", -1, 1, 18, 2, Q("8.205349 mm")),
    Sketcher.Constraint("DistanceX", -1, 1, 22, 2, Q("4.958131 mm")),
    Sketcher.Constraint("DistanceX", -1, 1, 6, 3, Q("11.246967 mm")),
    Sketcher.Constraint("DistanceX", -1, 1, 12, 3, Q("12.297278 mm")),
    Sketcher.Constraint("DistanceX", -1, 1, 14, 3, Q("7.039903 mm")),
    Sketcher.Constraint("DistanceX", -1, 1, 18, 3, Q("4.222146 mm")),
    Sketcher.Constraint("DistanceY", -1, 1, 24, 3, Q("8.264487 mm")),
])
sketch1.setExpression("Constraints[245]", "Params.sketch1_diameter")
sketch1.setExpression("Constraints[246]", "Params.sketch1_radius")
sketch1.setExpression("Constraints[247]", "Params.sketch1_radius2")
sketch1.setExpression("Constraints[248]", "Params.sketch1_radius3")
sketch1.setExpression("Constraints[249]", "Params.sketch1_radius4")
pad1 = doc.addObject("PartDesign::Pad", "Pad")
body.addObject(pad1)
pad1.Profile = sketch1
pad1.setExpression("Length", "Params.pad1_length")

doc.recompute()
